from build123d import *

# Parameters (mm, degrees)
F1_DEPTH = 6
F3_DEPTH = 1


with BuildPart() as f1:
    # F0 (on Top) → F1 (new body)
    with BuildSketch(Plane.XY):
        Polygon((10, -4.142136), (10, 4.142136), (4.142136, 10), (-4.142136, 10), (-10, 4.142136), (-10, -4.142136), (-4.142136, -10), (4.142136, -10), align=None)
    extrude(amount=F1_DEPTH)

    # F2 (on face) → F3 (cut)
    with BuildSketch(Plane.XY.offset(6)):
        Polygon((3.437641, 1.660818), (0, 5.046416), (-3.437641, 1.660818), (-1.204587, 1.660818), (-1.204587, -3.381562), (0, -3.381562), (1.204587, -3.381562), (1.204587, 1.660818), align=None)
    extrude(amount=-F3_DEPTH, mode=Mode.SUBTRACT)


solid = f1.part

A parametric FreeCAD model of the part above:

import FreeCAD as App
import Part
import Sketcher

doc = App.newDocument("Part")
body = doc.addObject("PartDesign::Body", "Body")

sketch1 = body.newObject("Sketcher::SketchObject", "Sketch")
sketch1.AttachmentSupport = (doc.getObject("XY_Plane"), [""])
sketch1.MapMode = "FlatFace"
sketch1.addGeometry([
    Part.LineSegment(App.Vector(10, -4, 0), App.Vector(10, 4, 0)),
    Part.LineSegment(App.Vector(10, 4, 0), App.Vector(4, 10, 0)),
    Part.LineSegment(App.Vector(4, 10, 0), App.Vector(-4, 10, 0)),
    Part.LineSegment(App.Vector(-4, 10, 0), App.Vector(-10, 4, 0)),
    Part.LineSegment(App.Vector(-10, 4, 0), App.Vector(-10, -4, 0)),
    Part.LineSegment(App.Vector(-10, -4, 0), App.Vector(-4, -10, 0)),
    Part.LineSegment(App.Vector(-4, -10, 0), App.Vector(4, -10, 0)),
    Part.LineSegment(App.Vector(4, -10, 0), App.Vector(10, -4, 0)),
], False)
sketch1.addConstraint([
    Sketcher.Constraint("Coincident", 0, 2, 1, 1),
    Sketcher.Constraint("Coincident", 1, 2, 2, 1),
    Sketcher.Constraint("Coincident", 2, 2, 3, 1),
    Sketcher.Constraint("Coincident", 3, 2, 4, 1),
    Sketcher.Constraint("Coincident", 4, 2, 5, 1),
    Sketcher.Constraint("Coincident", 5, 2, 6, 1),
    Sketcher.Constraint("Coincident", 6, 2, 7, 1),
    Sketcher.Constraint("Coincident", 7, 2, 0, 1),
    Sketcher.Constraint("Vertical", 0),
    Sketcher.Constraint("Horizontal", 2),
    Sketcher.Constraint("Vertical", 4),
    Sketcher.Constraint("Horizontal", 6),
    Sketcher.Constraint("Symmetric", 0, 2, 4, 2, -1, 1),
    Sketcher.Constraint("Symmetric", 1, 2, 5, 2, -1, 1),
    Sketcher.Constraint("Perpendicular", 1, 3),
    Sketcher.Constraint("Perpendicular", 5, 7),
    Sketcher.Constraint("Horizontal", 0, 2, 3, 2),
    Sketcher.Constraint("Horizontal", 4, 2, 7, 2),
    Sketcher.Constraint("Vertical", 2, 2, 5, 2),
    Sketcher.Constraint("Equal", 6, 0),
    Sketcher.Constraint("DistanceX", -1, 1, 0, 2, 10.0),
    Sketcher.Constraint("Distance", 1, 8.284271),
])
pad1 = body.newObject("PartDesign::Pad", "Pad")
pad1.Profile = sketch1
pad1.Length = 6

sketch2 = body.newObject("Sketcher::SketchObject", "Sketch001")
sketch2.AttachmentSupport = (doc.getObject("XY_Plane"), [""])
sketch2.MapMode = "FlatFace"
sketch2.AttachmentOffset = App.Placement(App.Vector(0, 0, 6), App.Rotation())
sketch2.addGeometry([
    Part.LineSegment(App.Vector(3.4, 1.7, 0), App.Vector(0, 5, 0)),
    Part.LineSegment(App.Vector(0, 5, 0), App.Vector(-3.4, 1.7, 0)),
    Part.LineSegment(App.Vector(-3.4, 1.7, 0), App.Vector(-1.2, 1.7, 0)),
    Part.LineSegment(App.Vector(-1.2, 1.7, 0), App.Vector(-1.2, -3.4, 0)),
    Part.LineSegment(App.Vector(-1.2, -3.4, 0), App.Vector(1.2, -3.4, 0)),
    Part.LineSegment(App.Vector(1.2, -3.4, 0), App.Vector(1.2, 1.7, 0)),
    Part.LineSegment(App.Vector(1.2, 1.7, 0), App.Vector(3.4, 1.7, 0)),
], False)
sketch2.addConstraint([
    Sketcher.Constraint("Coincident", 0, 2, 1, 1),
    Sketcher.Constraint("Coincident", 1, 2, 2, 1),
    Sketcher.Constraint("Coincident", 2, 2, 3, 1),
    Sketcher.Constraint("Coincident", 3, 2, 4, 1),
    Sketcher.Constraint("Coincident", 4, 2, 5, 1),
    Sketcher.Constraint("Coincident", 5, 2, 6, 1),
    Sketcher.Constraint("Coincident", 6, 2, 0, 1),
    Sketcher.Constraint("Horizontal", 2),
    Sketcher.Constraint("Vertical", 3),
    Sketcher.Constraint("Horizontal", 4),
    Sketcher.Constraint("Vertical", 5),
    Sketcher.Constraint("Horizontal", 6),
    Sketcher.Constraint("Symmetric", 2, 2, 5, 2, -2),
    Sketcher.Constraint("PointOnObject", 0, 2, -2),
    Sketcher.Constraint("Equal", 2, 6),
    Sketcher.Constraint("Distance", 0, 4.824899),
    Sketcher.Constraint("DistanceY", 3, 2, 3, 1, 5.04238),
    Sketcher.Constraint("DistanceX", 2, 1, 2, 2, 2.233054),
    Sketcher.Constraint("DistanceX", 4, 1, 4, 2, 2.409174),
    Sketcher.Constraint("DistanceY", -1, 1, 0, 2, 5.046416),
])
pocket1 = body.newObject("PartDesign::Pocket", "Pocket")
pocket1.Profile = sketch2
pocket1.Length = 1

doc.recompute()
